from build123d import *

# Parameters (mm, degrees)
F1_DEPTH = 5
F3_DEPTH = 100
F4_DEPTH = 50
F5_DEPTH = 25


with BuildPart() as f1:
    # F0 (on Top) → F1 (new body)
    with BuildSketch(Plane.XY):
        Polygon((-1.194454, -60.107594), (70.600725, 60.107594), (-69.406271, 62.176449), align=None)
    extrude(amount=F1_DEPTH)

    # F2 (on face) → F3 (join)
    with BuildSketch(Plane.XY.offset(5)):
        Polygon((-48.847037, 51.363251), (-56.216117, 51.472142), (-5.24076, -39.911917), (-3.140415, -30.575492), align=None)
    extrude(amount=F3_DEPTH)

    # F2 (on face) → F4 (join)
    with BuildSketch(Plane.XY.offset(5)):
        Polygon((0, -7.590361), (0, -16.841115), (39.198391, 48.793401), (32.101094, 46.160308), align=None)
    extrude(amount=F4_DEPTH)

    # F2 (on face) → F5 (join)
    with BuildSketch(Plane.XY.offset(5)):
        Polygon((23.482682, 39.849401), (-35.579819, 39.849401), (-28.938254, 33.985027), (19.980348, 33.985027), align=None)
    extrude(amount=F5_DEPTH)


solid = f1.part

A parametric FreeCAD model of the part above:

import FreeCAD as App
import Part
import Sketcher
from FreeCAD import Vector

doc = App.newDocument("Part")
params = doc.addObject("Spreadsheet::Sheet", "Params")
for row, (alias, value) in enumerate([
    ("pad1_length", "5 mm"),
    ("pad2_length", "100 mm"),
    ("pad3_length", "50 mm"),
    ("pad4_length", "25 mm"),
], start=1):
    params.set(f"A{row}", alias)
    params.set(f"B{row}", "=" + value)
    params.setAlias(f"B{row}", alias)

body = doc.addObject("PartDesign::Body", "Body")

# Sketch on XY plane
sketch1 = body.newObject("Sketcher::SketchObject", "Sketch")
sketch1.AttachmentSupport = (doc.getObject("XY_Plane"), [""])
sketch1.MapMode = "FlatFace"
sketch1.addGeometry(Part.LineSegment(Vector(-1, -60, 0), Vector(71, 60, 0)), False)
sketch1.addGeometry(Part.LineSegment(Vector(71, 60, 0), Vector(-69, 62, 0)), False)
sketch1.addGeometry(Part.LineSegment(Vector(-69, 62, 0), Vector(-1, -60, 0)), False)
sketch1.addConstraint(Sketcher.Constraint("Coincident", 0, 2, 1, 1))
sketch1.addConstraint(Sketcher.Constraint("Coincident", 1, 2, 2, 1))
sketch1.addConstraint(Sketcher.Constraint("Coincident", 2, 2, 0, 1))
sketch1.addConstraint(Sketcher.Constraint("Equal", 0, 1))
sketch1.addConstraint(Sketcher.Constraint("Equal", 1, 2))
sketch1.addConstraint(Sketcher.Constraint("Distance", 0, 140.022281))
sketch1.addConstraint(Sketcher.Constraint("DistanceX", 1, 2, -1, 1, 69.406271))
sketch1.addConstraint(Sketcher.Constraint("DistanceY", -1, 1, 1, 2, 62.176449))
sketch1.addConstraint(Sketcher.Constraint("DistanceX", 2, 2, 0, 2, 71.795179))
pad1 = body.newObject("PartDesign::Pad", "Pad")
pad1.Profile = sketch1
pad1.setExpression("Length", "Params.pad1_length")

# Sketch on XY plane
sketch2 = body.newObject("Sketcher::SketchObject", "Sketch001")
sketch2.AttachmentSupport = (doc.getObject("XY_Plane"), [""])
sketch2.MapMode = "FlatFace"
sketch2.AttachmentOffset = App.Placement(Vector(0, 0, 5), App.Rotation())
sketch2.addGeometry(Part.LineSegment(Vector(-49, 51, 0), Vector(-56, 51, 0)), False)
sketch2.addGeometry(Part.LineSegment(Vector(-56, 51, 0), Vector(-5, -40, 0)), False)
sketch2.addGeometry(Part.LineSegment(Vector(-5, -40, 0), Vector(-3, -31, 0)), False)
sketch2.addGeometry(Part.LineSegment(Vector(-3, -31, 0), Vector(-49, 51, 0)), False)
sketch2.addConstraint(Sketcher.Constraint("Coincident", 0, 2, 1, 1))
sketch2.addConstraint(Sketcher.Constraint("Coincident", 1, 2, 2, 1))
sketch2.addConstraint(Sketcher.Constraint("Coincident", 2, 2, 3, 1))
sketch2.addConstraint(Sketcher.Constraint("Coincident", 3, 2, 0, 1))
sketch2.addConstraint(Sketcher.Constraint("Parallel", 1, 3))
sketch2.addConstraint(Sketcher.Constraint("Distance", 2, 9.569759))
sketch2.addConstraint(Sketcher.Constraint("DistanceY", -1, 1, 0, 2, 51.472142))
sketch2.addConstraint(Sketcher.Constraint("DistanceX", 1, 2, -1, 1, 5.24076))
sketch2.addConstraint(Sketcher.Constraint("DistanceY", -1, 1, 3, 2, 51.363251))
sketch2.addConstraint(Sketcher.Constraint("DistanceY", 1, 2, 0, 2, 91.384059))
sketch2.addConstraint(Sketcher.Constraint("DistanceX", 0, 2, 3, 2, 7.36908))
sketch2.addConstraint(Sketcher.Constraint("Distance", 1, 104.640017))
pad2 = body.newObject("PartDesign::Pad", "Pad001")
pad2.Profile = sketch2
pad2.setExpression("Length", "Params.pad2_length")

# Sketch on XY plane
sketch3 = body.newObject("Sketcher::SketchObject", "Sketch002")
sketch3.AttachmentSupport = (doc.getObject("XY_Plane"), [""])
sketch3.MapMode = "FlatFace"
sketch3.AttachmentOffset = App.Placement(Vector(0, 0, 5), App.Rotation())
sketch3.addGeometry(Part.LineSegment(Vector(0, -8, 0), Vector(0, -17, 0)), False)
sketch3.addGeometry(Part.LineSegment(Vector(0, -17, 0), Vector(39, 49, 0)), False)
sketch3.addGeometry(Part.LineSegment(Vector(39, 49, 0), Vector(32, 46, 0)), False)
sketch3.addGeometry(Part.LineSegment(Vector(32, 46, 0), Vector(0, -8, 0)), False)
sketch3.addConstraint(Sketcher.Constraint("Coincident", 0, 2, 1, 1))
sketch3.addConstraint(Sketcher.Constraint("Coincident", 1, 2, 2, 1))
sketch3.addConstraint(Sketcher.Constraint("Coincident", 2, 2, 3, 1))
sketch3.addConstraint(Sketcher.Constraint("Coincident", 3, 2, 0, 1))
sketch3.addConstraint(Sketcher.Constraint("Vertical", 0))
sketch3.addConstraint(Sketcher.Constraint("PointOnObject", 0, 2, -2))
sketch3.addConstraint(Sketcher.Constraint("Parallel", 1, 3))
sketch3.addConstraint(Sketcher.Constraint("Distance", 1, 76.448699))
sketch3.addConstraint(Sketcher.Constraint("DistanceY", -1, 1, 1, 2, 48.793401))
sketch3.addConstraint(Sketcher.Constraint("DistanceY", 0, 2, 0, 1, 9.250754))
sketch3.addConstraint(Sketcher.Constraint("DistanceX", -1, 1, 1, 2, 39.198391))
sketch3.addConstraint(Sketcher.Constraint("DistanceY", 3, 2, 2, 2, 53.750669))
pad3 = body.newObject("PartDesign::Pad", "Pad002")
pad3.Profile = sketch3
pad3.setExpression("Length", "Params.pad3_length")

# Sketch on XY plane
sketch4 = body.newObject("Sketcher::SketchObject", "Sketch003")
sketch4.AttachmentSupport = (doc.getObject("XY_Plane"), [""])
sketch4.MapMode = "FlatFace"
sketch4.AttachmentOffset = App.Placement(Vector(0, 0, 5), App.Rotation())
sketch4.addGeometry(Part.LineSegment(Vector(23, 40, 0), Vector(-36, 40, 0)), False)
sketch4.addGeometry(Part.LineSegment(Vector(-36, 40, 0), Vector(-29, 34, 0)), False)
sketch4.addGeometry(Part.LineSegment(Vector(-29, 34, 0), Vector(20, 34, 0)), False)
sketch4.addGeometry(Part.LineSegment(Vector(20, 34, 0), Vector(23, 40, 0)), False)
sketch4.addConstraint(Sketcher.Constraint("Coincident", 0, 2, 1, 1))
sketch4.addConstraint(Sketcher.Constraint("Coincident", 1, 2, 2, 1))
sketch4.addConstraint(Sketcher.Constraint("Coincident", 2, 2, 3, 1))
sketch4.addConstraint(Sketcher.Constraint("Coincident", 3, 2, 0, 1))
sketch4.addConstraint(Sketcher.Constraint("Horizontal", 0))
sketch4.addConstraint(Sketcher.Constraint("Horizontal", 2))
sketch4.addConstraint(Sketcher.Constraint("DistanceX", 0, 2, 0, 1, 59.062501))
sketch4.addConstraint(Sketcher.Constraint("DistanceY", -1, 1, 0, 2, 39.849401))
sketch4.addConstraint(Sketcher.Constraint("Distance", 3, 6.830609))
sketch4.addConstraint(Sketcher.Constraint("DistanceX", 2, 1, 2, 2, 48.918602))
sketch4.addConstraint(Sketcher.Constraint("DistanceX", 0, 2, -1, 1, 35.579819))
sketch4.addConstraint(Sketcher.Constraint("Distance", 1, 8.860094))
pad4 = body.newObject("PartDesign::Pad", "Pad003")
pad4.Profile = sketch4
pad4.setExpression("Length", "Params.pad4_length")

doc.recompute()
